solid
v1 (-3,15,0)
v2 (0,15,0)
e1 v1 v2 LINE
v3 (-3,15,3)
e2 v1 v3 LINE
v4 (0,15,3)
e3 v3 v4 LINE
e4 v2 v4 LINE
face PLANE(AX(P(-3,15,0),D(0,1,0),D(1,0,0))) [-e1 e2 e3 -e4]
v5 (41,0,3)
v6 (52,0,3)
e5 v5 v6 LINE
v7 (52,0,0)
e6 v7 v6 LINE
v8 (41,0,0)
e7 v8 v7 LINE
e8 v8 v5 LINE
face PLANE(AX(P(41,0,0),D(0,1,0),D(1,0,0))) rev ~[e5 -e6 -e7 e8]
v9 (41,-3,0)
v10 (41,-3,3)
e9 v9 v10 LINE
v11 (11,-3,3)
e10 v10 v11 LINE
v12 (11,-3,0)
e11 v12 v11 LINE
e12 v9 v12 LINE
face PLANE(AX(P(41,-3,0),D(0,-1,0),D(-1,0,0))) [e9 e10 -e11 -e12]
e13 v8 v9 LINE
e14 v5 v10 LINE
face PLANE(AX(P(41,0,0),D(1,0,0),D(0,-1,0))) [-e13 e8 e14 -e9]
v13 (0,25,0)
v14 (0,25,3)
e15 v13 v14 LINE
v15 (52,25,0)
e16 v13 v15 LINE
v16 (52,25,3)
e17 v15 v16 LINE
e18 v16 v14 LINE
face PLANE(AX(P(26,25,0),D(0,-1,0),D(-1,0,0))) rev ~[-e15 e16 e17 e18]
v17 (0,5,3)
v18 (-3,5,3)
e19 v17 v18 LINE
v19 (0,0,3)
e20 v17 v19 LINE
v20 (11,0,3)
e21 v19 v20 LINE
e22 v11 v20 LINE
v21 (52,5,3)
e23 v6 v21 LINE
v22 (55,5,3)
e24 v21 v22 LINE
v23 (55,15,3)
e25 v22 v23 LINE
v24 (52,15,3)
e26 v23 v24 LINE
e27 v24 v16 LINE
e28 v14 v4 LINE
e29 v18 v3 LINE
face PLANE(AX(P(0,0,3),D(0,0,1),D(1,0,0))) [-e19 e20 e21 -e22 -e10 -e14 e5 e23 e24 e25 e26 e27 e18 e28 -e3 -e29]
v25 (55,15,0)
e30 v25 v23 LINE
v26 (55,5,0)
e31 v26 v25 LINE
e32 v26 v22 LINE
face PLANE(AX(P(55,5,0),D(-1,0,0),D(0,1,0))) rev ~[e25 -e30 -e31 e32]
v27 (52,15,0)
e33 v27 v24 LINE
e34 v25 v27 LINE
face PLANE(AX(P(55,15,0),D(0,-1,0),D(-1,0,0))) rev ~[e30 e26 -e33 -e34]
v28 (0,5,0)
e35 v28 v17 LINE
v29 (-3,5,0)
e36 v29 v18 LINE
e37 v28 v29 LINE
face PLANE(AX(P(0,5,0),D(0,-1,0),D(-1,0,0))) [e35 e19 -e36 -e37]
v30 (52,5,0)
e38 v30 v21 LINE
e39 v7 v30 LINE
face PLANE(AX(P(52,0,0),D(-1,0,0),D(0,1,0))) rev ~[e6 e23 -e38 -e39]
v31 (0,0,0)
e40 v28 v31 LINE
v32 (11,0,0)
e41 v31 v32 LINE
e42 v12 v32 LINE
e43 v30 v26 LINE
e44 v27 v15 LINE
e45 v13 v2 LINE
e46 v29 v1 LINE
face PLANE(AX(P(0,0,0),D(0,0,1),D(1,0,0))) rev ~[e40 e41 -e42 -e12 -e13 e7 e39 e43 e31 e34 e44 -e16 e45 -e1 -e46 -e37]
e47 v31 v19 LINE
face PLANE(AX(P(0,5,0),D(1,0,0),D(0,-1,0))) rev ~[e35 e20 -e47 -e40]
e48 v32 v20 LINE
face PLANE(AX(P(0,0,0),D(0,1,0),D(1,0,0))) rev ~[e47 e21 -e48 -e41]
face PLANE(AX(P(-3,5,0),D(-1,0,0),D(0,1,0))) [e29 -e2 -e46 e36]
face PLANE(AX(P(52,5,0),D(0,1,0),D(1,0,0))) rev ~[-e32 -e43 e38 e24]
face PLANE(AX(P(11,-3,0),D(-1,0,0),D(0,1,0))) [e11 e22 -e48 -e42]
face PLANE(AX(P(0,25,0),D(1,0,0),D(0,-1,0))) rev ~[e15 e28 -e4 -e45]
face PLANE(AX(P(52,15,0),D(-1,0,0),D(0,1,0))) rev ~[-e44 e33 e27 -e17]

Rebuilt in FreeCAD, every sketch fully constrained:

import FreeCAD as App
import Part
import Sketcher
Q = App.Units.Quantity


def add_polygon(sketch, points):
    """Adds a closed chain of lines whose ends are joined by coincident constraints."""
    first, n = sketch.GeometryCount, len(points)
    for a, b in zip(points, points[1:] + points[:1]):
        sketch.addGeometry(Part.LineSegment(App.Vector(*a, 0), App.Vector(*b, 0)), False)
    for i in range(n):
        sketch.addConstraint(Sketcher.Constraint("Coincident", first + i, 2, first + (i + 1) % n, 1))

doc = App.newDocument("Part")
body = doc.addObject("PartDesign::Body", "Body")

sketch1 = doc.addObject("Sketcher::SketchObject", "Sketch")
body.addObject(sketch1)
sketch1.AttachmentSupport = (doc.XY_Plane, [""])
sketch1.MapMode = "FlatFace"
add_polygon(sketch1, [(0, 5), (0, 0), (11, 0), (11, -3), (41, -3), (41, 0), (52, 0), (52, 5), (55, 5), (55, 15), (52, 15), (52, 25), (0, 25), (0, 15), (-3, 15), (-3, 5)])
sketch1.addConstraint(Sketcher.Constraint("Vertical", 0))
sketch1.addConstraint(Sketcher.Constraint("Horizontal", 1))
sketch1.addConstraint(Sketcher.Constraint("Vertical", 2))
sketch1.addConstraint(Sketcher.Constraint("Horizontal", 3))
sketch1.addConstraint(Sketcher.Constraint("Vertical", 4))
sketch1.addConstraint(Sketcher.Constraint("Horizontal", 5))
sketch1.addConstraint(Sketcher.Constraint("Vertical", 6))
sketch1.addConstraint(Sketcher.Constraint("Horizontal", 7))
sketch1.addConstraint(Sketcher.Constraint("Vertical", 8))
sketch1.addConstraint(Sketcher.Constraint("Horizontal", 9))
sketch1.addConstraint(Sketcher.Constraint("Vertical", 10))
sketch1.addConstraint(Sketcher.Constraint("Horizontal", 11))
sketch1.addConstraint(Sketcher.Constraint("Vertical", 12))
sketch1.addConstraint(Sketcher.Constraint("Horizontal", 13))
sketch1.addConstraint(Sketcher.Constraint("Vertical", 14))
sketch1.addConstraint(Sketcher.Constraint("Horizontal", 15))
sketch1.addConstraint(Sketcher.Constraint("Coincident", 0, 2, -1, 1))
sketch1.addConstraint(Sketcher.Constraint("PointOnObject", 4, 2, -1))
sketch1.addConstraint(Sketcher.Constraint("PointOnObject", 11, 2, -2))
sketch1.addConstraint(Sketcher.Constraint("Horizontal", 9, 2, 12, 2))
sketch1.addConstraint(Sketcher.Constraint("Horizontal", 7, 2, 14, 2))
sketch1.addConstraint(Sketcher.Constraint("Vertical", 6, 2, 9, 2))
sketch1.addConstraint(Sketcher.Constraint("Equal", 1, 5))
sketch1.addConstraint(Sketcher.Constraint("Equal", 9, 13))
sketch1.addConstraint(Sketcher.Constraint("Equal", 15, 2))
sketch1.addConstraint(Sketcher.Constraint("Equal", 8, 10))
sketch1.addConstraint(Sketcher.Constraint("DistanceX", 3, 1, 3, 2, Q("30 mm")))
sketch1.addConstraint(Sketcher.Constraint("DistanceX", 7, 1, 7, 2, Q("3 mm")))
sketch1.addConstraint(Sketcher.Constraint("DistanceX", 11, 2, 11, 1, Q("52 mm")))
sketch1.addConstraint(Sketcher.Constraint("DistanceY", 0, 2, 0, 1, Q("5 mm")))
sketch1.addConstraint(Sketcher.Constraint("DistanceY", 8, 1, 8, 2, Q("10 mm")))
pad1 = doc.addObject("PartDesign::Pad", "Pad")
body.addObject(pad1)
pad1.Profile = sketch1
pad1.Length = 3

doc.recompute()
